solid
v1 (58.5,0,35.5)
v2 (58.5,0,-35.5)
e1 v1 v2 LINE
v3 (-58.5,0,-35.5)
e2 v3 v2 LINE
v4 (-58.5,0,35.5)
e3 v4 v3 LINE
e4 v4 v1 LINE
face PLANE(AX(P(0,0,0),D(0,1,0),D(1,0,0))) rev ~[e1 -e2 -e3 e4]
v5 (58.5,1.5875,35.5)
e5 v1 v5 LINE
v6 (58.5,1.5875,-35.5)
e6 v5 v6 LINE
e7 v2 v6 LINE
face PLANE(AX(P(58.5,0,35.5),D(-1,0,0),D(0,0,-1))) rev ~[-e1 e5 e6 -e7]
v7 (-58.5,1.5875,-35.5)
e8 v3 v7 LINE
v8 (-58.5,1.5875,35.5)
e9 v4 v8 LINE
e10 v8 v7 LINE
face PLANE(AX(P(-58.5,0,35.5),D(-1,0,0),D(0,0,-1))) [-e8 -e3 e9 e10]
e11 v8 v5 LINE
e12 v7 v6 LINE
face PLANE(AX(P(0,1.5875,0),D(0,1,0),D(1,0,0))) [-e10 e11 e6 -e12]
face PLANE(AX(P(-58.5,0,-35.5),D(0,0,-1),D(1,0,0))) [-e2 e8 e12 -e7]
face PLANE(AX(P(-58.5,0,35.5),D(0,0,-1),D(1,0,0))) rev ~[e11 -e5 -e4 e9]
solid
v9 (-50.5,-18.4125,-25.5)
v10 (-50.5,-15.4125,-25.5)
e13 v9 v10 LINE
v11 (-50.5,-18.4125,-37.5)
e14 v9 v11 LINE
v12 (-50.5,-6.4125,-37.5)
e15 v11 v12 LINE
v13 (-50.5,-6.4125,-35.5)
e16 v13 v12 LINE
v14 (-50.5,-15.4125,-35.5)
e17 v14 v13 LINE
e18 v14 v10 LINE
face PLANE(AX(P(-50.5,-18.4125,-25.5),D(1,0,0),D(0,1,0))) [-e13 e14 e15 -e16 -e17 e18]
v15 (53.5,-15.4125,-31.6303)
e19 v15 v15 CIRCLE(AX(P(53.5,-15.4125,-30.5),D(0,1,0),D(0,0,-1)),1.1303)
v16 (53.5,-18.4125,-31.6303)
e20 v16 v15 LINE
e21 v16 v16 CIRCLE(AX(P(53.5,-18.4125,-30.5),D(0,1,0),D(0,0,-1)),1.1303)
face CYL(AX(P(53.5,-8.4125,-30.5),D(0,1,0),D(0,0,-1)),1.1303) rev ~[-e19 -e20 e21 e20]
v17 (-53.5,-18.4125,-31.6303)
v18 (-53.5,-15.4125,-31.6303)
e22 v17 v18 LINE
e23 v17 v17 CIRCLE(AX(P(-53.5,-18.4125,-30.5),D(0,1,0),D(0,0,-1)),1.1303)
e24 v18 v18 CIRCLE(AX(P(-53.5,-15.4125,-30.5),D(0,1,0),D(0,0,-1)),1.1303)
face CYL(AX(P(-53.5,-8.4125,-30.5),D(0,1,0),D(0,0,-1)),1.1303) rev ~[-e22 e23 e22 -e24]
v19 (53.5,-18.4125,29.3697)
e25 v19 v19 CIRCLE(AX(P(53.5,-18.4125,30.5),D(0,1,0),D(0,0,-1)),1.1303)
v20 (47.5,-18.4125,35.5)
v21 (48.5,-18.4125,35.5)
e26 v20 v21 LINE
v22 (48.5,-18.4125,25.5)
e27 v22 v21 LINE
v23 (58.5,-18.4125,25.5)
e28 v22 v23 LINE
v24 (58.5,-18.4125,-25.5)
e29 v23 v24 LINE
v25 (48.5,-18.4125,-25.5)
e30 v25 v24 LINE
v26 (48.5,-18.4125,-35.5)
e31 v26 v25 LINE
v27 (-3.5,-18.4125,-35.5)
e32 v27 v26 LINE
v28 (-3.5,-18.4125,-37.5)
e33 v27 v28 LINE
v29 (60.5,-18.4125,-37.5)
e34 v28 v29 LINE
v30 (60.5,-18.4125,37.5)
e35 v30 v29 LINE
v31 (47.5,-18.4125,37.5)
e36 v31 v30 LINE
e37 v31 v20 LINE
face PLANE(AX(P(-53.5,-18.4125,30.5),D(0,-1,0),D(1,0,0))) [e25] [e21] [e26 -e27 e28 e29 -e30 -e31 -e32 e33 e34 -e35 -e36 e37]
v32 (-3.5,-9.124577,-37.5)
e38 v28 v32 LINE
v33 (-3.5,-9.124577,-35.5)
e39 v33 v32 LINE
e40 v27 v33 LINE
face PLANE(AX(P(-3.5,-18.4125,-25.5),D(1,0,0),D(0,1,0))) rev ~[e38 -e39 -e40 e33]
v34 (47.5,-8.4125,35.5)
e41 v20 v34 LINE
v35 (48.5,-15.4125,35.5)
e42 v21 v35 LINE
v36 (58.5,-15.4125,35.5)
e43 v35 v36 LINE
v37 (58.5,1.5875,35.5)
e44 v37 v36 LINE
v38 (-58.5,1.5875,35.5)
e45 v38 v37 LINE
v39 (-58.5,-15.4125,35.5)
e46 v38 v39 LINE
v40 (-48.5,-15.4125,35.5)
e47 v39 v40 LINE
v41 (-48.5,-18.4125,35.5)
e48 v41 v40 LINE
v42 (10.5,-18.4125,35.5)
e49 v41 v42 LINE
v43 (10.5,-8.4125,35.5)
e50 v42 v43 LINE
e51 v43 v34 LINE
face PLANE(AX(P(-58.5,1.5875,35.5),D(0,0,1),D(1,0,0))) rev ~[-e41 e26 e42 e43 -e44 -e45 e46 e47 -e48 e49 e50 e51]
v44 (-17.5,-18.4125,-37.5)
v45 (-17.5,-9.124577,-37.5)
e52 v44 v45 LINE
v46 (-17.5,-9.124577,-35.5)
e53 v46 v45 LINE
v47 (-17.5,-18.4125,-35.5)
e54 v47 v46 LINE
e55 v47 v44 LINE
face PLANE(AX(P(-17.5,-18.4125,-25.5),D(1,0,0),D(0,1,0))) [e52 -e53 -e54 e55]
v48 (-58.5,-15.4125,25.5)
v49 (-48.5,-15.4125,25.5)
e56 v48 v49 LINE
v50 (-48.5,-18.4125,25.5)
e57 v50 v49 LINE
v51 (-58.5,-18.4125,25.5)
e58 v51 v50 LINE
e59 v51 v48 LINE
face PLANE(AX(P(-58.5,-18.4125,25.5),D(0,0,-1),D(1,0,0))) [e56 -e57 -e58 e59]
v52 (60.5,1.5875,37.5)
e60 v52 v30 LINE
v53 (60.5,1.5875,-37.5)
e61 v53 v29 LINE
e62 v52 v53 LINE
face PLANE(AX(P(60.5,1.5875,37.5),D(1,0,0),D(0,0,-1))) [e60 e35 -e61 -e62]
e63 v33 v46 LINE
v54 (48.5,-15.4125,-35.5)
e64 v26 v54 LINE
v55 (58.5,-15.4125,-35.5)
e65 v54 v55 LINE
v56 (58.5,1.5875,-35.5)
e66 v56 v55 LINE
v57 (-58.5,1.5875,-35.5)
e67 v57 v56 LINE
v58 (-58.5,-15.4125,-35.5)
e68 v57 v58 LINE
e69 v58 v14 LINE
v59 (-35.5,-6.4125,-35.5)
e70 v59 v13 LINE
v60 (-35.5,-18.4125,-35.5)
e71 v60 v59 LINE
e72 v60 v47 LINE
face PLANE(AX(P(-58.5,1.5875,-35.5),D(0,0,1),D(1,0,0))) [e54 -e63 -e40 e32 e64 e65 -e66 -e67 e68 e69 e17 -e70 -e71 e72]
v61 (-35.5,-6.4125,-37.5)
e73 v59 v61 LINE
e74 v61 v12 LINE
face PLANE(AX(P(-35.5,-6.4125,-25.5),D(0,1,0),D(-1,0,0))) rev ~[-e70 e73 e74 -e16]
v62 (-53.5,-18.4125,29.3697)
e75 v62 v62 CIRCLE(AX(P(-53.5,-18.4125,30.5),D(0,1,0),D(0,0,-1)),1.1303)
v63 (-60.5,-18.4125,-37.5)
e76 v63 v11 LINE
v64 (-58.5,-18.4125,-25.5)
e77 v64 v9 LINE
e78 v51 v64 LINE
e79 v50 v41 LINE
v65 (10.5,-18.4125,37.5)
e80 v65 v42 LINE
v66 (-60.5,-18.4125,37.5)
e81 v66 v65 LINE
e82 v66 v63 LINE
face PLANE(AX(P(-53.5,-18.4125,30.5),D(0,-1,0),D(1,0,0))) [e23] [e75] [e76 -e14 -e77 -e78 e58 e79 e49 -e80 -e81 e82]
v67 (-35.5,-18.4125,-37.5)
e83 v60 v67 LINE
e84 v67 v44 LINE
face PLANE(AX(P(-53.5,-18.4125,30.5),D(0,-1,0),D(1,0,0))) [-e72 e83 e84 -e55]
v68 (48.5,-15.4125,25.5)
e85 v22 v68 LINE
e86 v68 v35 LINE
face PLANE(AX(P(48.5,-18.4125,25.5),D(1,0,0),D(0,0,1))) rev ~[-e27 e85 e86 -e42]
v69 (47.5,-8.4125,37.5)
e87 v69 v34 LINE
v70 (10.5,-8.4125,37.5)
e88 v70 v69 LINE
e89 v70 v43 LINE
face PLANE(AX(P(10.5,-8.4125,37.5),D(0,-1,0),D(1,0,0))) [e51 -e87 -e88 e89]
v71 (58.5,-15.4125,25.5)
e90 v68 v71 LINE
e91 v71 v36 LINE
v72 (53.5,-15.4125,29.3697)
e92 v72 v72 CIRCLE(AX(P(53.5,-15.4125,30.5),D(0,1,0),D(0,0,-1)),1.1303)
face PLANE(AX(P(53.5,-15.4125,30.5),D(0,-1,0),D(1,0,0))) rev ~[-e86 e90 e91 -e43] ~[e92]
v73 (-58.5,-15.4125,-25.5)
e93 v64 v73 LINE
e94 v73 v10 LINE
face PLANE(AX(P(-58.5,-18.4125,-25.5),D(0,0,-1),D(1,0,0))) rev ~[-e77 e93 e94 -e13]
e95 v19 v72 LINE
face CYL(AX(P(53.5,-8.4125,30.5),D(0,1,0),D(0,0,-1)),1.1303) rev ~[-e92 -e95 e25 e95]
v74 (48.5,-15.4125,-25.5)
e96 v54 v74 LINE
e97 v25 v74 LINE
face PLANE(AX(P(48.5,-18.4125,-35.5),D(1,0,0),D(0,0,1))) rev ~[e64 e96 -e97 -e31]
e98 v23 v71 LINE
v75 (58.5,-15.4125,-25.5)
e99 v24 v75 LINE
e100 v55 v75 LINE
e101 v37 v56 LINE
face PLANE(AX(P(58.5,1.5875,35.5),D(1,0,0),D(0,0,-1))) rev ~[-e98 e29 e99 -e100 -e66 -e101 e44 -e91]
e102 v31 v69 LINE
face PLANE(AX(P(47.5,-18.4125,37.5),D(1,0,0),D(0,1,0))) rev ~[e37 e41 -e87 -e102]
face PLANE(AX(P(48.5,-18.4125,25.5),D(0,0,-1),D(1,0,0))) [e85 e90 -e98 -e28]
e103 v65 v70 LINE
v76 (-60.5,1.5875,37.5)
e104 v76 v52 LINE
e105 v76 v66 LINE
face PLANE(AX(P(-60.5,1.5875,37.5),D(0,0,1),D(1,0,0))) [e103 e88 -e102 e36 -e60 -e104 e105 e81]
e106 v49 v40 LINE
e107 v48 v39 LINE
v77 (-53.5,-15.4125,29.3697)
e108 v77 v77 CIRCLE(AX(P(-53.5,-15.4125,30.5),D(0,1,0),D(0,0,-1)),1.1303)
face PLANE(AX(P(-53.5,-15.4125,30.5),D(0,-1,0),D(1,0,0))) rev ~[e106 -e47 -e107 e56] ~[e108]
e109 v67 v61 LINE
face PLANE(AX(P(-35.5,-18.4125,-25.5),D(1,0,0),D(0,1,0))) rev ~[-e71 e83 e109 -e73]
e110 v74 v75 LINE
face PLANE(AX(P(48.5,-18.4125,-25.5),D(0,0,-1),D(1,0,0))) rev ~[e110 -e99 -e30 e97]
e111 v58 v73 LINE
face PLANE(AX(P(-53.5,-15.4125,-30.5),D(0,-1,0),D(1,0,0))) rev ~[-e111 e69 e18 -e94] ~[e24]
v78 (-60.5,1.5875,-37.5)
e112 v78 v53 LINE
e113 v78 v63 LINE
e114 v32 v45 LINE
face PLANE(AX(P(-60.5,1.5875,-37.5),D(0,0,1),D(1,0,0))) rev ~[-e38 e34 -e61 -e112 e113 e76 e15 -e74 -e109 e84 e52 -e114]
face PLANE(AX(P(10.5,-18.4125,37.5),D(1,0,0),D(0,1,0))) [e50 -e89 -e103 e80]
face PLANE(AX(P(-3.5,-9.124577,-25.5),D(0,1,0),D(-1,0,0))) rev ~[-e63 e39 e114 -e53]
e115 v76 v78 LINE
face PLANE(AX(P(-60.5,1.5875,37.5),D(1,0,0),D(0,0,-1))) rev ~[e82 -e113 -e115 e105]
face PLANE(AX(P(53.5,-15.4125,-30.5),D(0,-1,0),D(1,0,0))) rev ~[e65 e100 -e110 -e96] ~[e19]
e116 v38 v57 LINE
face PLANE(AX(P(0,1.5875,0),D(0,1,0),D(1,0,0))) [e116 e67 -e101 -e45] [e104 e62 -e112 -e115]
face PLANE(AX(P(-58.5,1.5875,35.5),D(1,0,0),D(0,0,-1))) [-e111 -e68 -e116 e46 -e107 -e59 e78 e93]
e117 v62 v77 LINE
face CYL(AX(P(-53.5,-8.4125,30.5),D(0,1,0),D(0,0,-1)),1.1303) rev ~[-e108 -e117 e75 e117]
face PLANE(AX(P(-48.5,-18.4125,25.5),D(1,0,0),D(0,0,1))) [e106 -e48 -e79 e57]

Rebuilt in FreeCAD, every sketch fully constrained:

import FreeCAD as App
import Part
import Sketcher
from FreeCAD import Vector
Q = App.Units.Quantity

doc = App.newDocument("Part")
params = doc.addObject("Spreadsheet::Sheet", "Params")
for row, (alias, value) in enumerate([
    ("sketch1_width", "117 mm"),
    ("sketch1_height", "71 mm"),
    ("pad1_length", "1.5875 mm"),
    ("sketch2_width", "121 mm"),
    ("sketch2_width2", "117 mm"),
    ("sketch2_height", "75 mm"),
    ("sketch2_height2", "71 mm"),
    ("pad2_length", "20 mm"),
    ("sketch3_width", "10 mm"),
    ("pad3_length", "3 mm"),
    ("sketch4_width", "20 mm"),
    ("groove_angle", "360 deg"),
    ("linearpattern_pitch", "107 mm"),
    ("linearpattern2_pitch", "123.166554 mm"),
    ("linearpattern3_pitch", "61 mm"),
    ("sketch5_width", "15 mm"),
    ("sketch5_width2", "14 mm"),
    ("sketch5_height", "12 mm"),
    ("pocket1_length", "12 mm"),
    ("sketch6_width", "37 mm"),
    ("sketch6_height", "10 mm"),
    ("pocket2_length", "2 mm"),
], start=1):
    params.set(f"A{row}", alias)
    params.set(f"B{row}", "=" + value)
    params.setAlias(f"B{row}", alias)

body = doc.addObject("PartDesign::Body", "Body")

sketch1 = body.newObject("Sketcher::SketchObject", "Sketch")
sketch1.AttachmentSupport = (doc.getObject("XZ_Plane"), [""])
sketch1.MapMode = "FlatFace"
sketch1.addGeometry([
    Part.LineSegment(Vector(-58, -36, 0), Vector(-58, 36, 0)),
    Part.LineSegment(Vector(-58, 36, 0), Vector(58, 36, 0)),
    Part.LineSegment(Vector(58, 36, 0), Vector(58, -36, 0)),
    Part.LineSegment(Vector(58, -36, 0), Vector(-58, -36, 0)),
], False)
sketch1.addConstraint([
    Sketcher.Constraint("Coincident", 0, 2, 1, 1),
    Sketcher.Constraint("Coincident", 1, 2, 2, 1),
    Sketcher.Constraint("Coincident", 2, 2, 3, 1),
    Sketcher.Constraint("Coincident", 3, 2, 0, 1),
    Sketcher.Constraint("Vertical", 0),
    Sketcher.Constraint("Horizontal", 1),
    Sketcher.Constraint("Vertical", 2),
    Sketcher.Constraint("Horizontal", 3),
    Sketcher.Constraint("Symmetric", 0, 2, 2, 2, -1, 1),
    Sketcher.Constraint("DistanceX", 1, 1, 1, 2, Q("117 mm")),
    Sketcher.Constraint("DistanceY", 0, 1, 0, 2, Q("71 mm")),
])
sketch1.setExpression("Constraints[9]", "Params.sketch1_width")
sketch1.setExpression("Constraints[10]", "Params.sketch1_height")
pad1 = body.newObject("PartDesign::Pad", "Pad")
pad1.Profile = sketch1
pad1.setExpression("Length", "Params.pad1_length")
pad1.Reversed = True
body2 = doc.addObject("PartDesign::Body", "Body001")

sketch2 = body2.newObject("Sketcher::SketchObject", "Sketch001")
sketch2.AttachmentSupport = (doc.getObject("XZ_Plane001"), [""])
sketch2.MapMode = "FlatFace"
sketch2.AttachmentOffset = App.Placement(Vector(0, 0, -1.5875), App.Rotation())
sketch2.addGeometry([
    Part.LineSegment(Vector(-60, -38, 0), Vector(-60, 38, 0)),
    Part.LineSegment(Vector(-60, 38, 0), Vector(60, 38, 0)),
    Part.LineSegment(Vector(60, 38, 0), Vector(60, -38, 0)),
    Part.LineSegment(Vector(60, -38, 0), Vector(-60, -38, 0)),
    Part.LineSegment(Vector(58, 36, 0), Vector(-58, 36, 0)),
    Part.LineSegment(Vector(-58, 36, 0), Vector(-58, -36, 0)),
    Part.LineSegment(Vector(-58, -36, 0), Vector(58, -36, 0)),
    Part.LineSegment(Vector(58, -36, 0), Vector(58, 36, 0)),
], False)
sketch2.addConstraint([
    Sketcher.Constraint("Coincident", 0, 2, 1, 1),
    Sketcher.Constraint("Coincident", 1, 2, 2, 1),
    Sketcher.Constraint("Coincident", 2, 2, 3, 1),
    Sketcher.Constraint("Coincident", 3, 2, 0, 1),
    Sketcher.Constraint("Coincident", 4, 2, 5, 1),
    Sketcher.Constraint("Coincident", 5, 2, 6, 1),
    Sketcher.Constraint("Coincident", 6, 2, 7, 1),
    Sketcher.Constraint("Coincident", 7, 2, 4, 1),
    Sketcher.Constraint("Vertical", 0),
    Sketcher.Constraint("Horizontal", 1),
    Sketcher.Constraint("Vertical", 2),
    Sketcher.Constraint("Horizontal", 3),
    Sketcher.Constraint("Horizontal", 4),
    Sketcher.Constraint("Vertical", 5),
    Sketcher.Constraint("Horizontal", 6),
    Sketcher.Constraint("Vertical", 7),
    Sketcher.Constraint("Symmetric", 0, 2, 2, 2, -1, 1),
    Sketcher.Constraint("Symmetric", 4, 2, 6, 2, -1, 1),
    Sketcher.Constraint("DistanceX", 1, 1, 1, 2, Q("121 mm")),
    Sketcher.Constraint("DistanceX", 4, 2, 4, 1, Q("117 mm")),
    Sketcher.Constraint("DistanceY", 0, 1, 0, 2, Q("75 mm")),
    Sketcher.Constraint("DistanceY", 5, 2, 5, 1, Q("71 mm")),
])
sketch2.setExpression("Constraints[18]", "Params.sketch2_width")
sketch2.setExpression("Constraints[19]", "Params.sketch2_width2")
sketch2.setExpression("Constraints[20]", "Params.sketch2_height")
sketch2.setExpression("Constraints[21]", "Params.sketch2_height2")
pad2 = body2.newObject("PartDesign::Pad", "Pad001")
pad2.Profile = sketch2
pad2.setExpression("Length", "Params.pad2_length")

sketch3 = body2.newObject("Sketcher::SketchObject", "Sketch002")
sketch3.AttachmentSupport = (doc.getObject("XZ_Plane001"), [""])
sketch3.MapMode = "FlatFace"
sketch3.AttachmentOffset = App.Placement(Vector(0, 0, 18.4125), App.Rotation())
sketch3.addGeometry([
    Part.LineSegment(Vector(-58, 36, 0), Vector(-58, 26, 0)),
    Part.LineSegment(Vector(-58, 26, 0), Vector(-48, 26, 0)),
    Part.LineSegment(Vector(-48, 26, 0), Vector(-48, 36, 0)),
    Part.LineSegment(Vector(-48, 36, 0), Vector(-58, 36, 0)),
    Part.LineSegment(Vector(48, 36, 0), Vector(48, 26, 0)),
    Part.LineSegment(Vector(48, 26, 0), Vector(58, 26, 0)),
    Part.LineSegment(Vector(58, 26, 0), Vector(58, 36, 0)),
    Part.LineSegment(Vector(58, 36, 0), Vector(48, 36, 0)),
    Part.LineSegment(Vector(48, -26, 0), Vector(48, -36, 0)),
    Part.LineSegment(Vector(48, -36, 0), Vector(58, -36, 0)),
    Part.LineSegment(Vector(58, -36, 0), Vector(58, -26, 0)),
    Part.LineSegment(Vector(58, -26, 0), Vector(48, -26, 0)),
    Part.LineSegment(Vector(-58, -26, 0), Vector(-58, -36, 0)),
    Part.LineSegment(Vector(-58, -36, 0), Vector(-48, -36, 0)),
    Part.LineSegment(Vector(-48, -36, 0), Vector(-48, -26, 0)),
    Part.LineSegment(Vector(-48, -26, 0), Vector(-58, -26, 0)),
], False)
sketch3.addConstraint([
    Sketcher.Constraint("Coincident", 0, 2, 1, 1),
    Sketcher.Constraint("Coincident", 1, 2, 2, 1),
    Sketcher.Constraint("Coincident", 2, 2, 3, 1),
    Sketcher.Constraint("Coincident", 3, 2, 0, 1),
    Sketcher.Constraint("Coincident", 4, 2, 5, 1),
    Sketcher.Constraint("Coincident", 5, 2, 6, 1),
    Sketcher.Constraint("Coincident", 6, 2, 7, 1),
    Sketcher.Constraint("Coincident", 7, 2, 4, 1),
    Sketcher.Constraint("Coincident", 8, 2, 9, 1),
    Sketcher.Constraint("Coincident", 9, 2, 10, 1),
    Sketcher.Constraint("Coincident", 10, 2, 11, 1),
    Sketcher.Constraint("Coincident", 11, 2, 8, 1),
    Sketcher.Constraint("Coincident", 12, 2, 13, 1),
    Sketcher.Constraint("Coincident", 13, 2, 14, 1),
    Sketcher.Constraint("Coincident", 14, 2, 15, 1),
    Sketcher.Constraint("Coincident", 15, 2, 12, 1),
    Sketcher.Constraint("Vertical", 0),
    Sketcher.Constraint("Horizontal", 1),
    Sketcher.Constraint("Vertical", 2),
    Sketcher.Constraint("Horizontal", 3),
    Sketcher.Constraint("Vertical", 4),
    Sketcher.Constraint("Horizontal", 5),
    Sketcher.Constraint("Vertical", 6),
    Sketcher.Constraint("Horizontal", 7),
    Sketcher.Constraint("Vertical", 8),
    Sketcher.Constraint("Horizontal", 9),
    Sketcher.Constraint("Vertical", 10),
    Sketcher.Constraint("Horizontal", 11),
    Sketcher.Constraint("Vertical", 12),
    Sketcher.Constraint("Horizontal", 13),
    Sketcher.Constraint("Vertical", 14),
    Sketcher.Constraint("Horizontal", 15),
    Sketcher.Constraint("Symmetric", 2, 2, 8, 2, -1, 1),
    Sketcher.Constraint("Symmetric", 0, 2, 10, 2, -1, 1),
    Sketcher.Constraint("Symmetric", 6, 2, 12, 2, -1, 1),
    Sketcher.Constraint("Symmetric", 4, 2, 14, 2, -1, 1),
    Sketcher.Constraint("Symmetric", 1, 2, 4, 2, -2),
    Sketcher.Constraint("Symmetric", 3, 2, 6, 2, -2),
    Sketcher.Constraint("Equal", 15, 0),
    Sketcher.Constraint("DistanceX", 1, 1, 1, 2, Q("10 mm")),
    Sketcher.Constraint("DistanceX", 1, 2, 4, 2, Q("97 mm")),
    Sketcher.Constraint("DistanceY", 8, 2, 4, 2, Q("61 mm")),
])
sketch3.setExpression("Constraints[39]", "Params.sketch3_width")
pad3 = body2.newObject("PartDesign::Pad", "Pad002")
pad3.Profile = sketch3
pad3.setExpression("Length", "Params.pad3_length")
pad3.Reversed = True

sketch4 = body2.newObject("Sketcher::SketchObject", "Sketch003")
sketch4.AttachmentSupport = (doc.getObject("YZ_Plane001"), [""])
sketch4.MapMode = "FlatFace"
sketch4.AttachmentOffset = App.Placement(Vector(0, 0, -53.5), App.Rotation())
sketch4.addGeometry([
    Part.LineSegment(Vector(1.6, -30.5, 0), Vector(-18.4, -30.5, 0)),
    Part.LineSegment(Vector(-18.4, -30.5, 0), Vector(-18.4, -31.6, 0)),
    Part.LineSegment(Vector(-18.4, -31.6, 0), Vector(1.6, -31.6, 0)),
    Part.LineSegment(Vector(1.6, -31.6, 0), Vector(1.6, -30.5, 0)),
], False)
sketch4.addGeometry(Part.LineSegment(Vector(-18.4, -30.5, 0), Vector(1.6, -30.5, 0)), True)
sketch4.addConstraint([
    Sketcher.Constraint("Coincident", 0, 2, 1, 1),
    Sketcher.Constraint("Coincident", 1, 2, 2, 1),
    Sketcher.Constraint("Coincident", 2, 2, 3, 1),
    Sketcher.Constraint("Coincident", 3, 2, 0, 1),
    Sketcher.Constraint("Horizontal", 0),
    Sketcher.Constraint("Vertical", 1),
    Sketcher.Constraint("Horizontal", 2),
    Sketcher.Constraint("Vertical", 3),
    Sketcher.Constraint("Horizontal", 4),
    Sketcher.Constraint("Coincident", 4, 1, 0, 2),
    Sketcher.Constraint("Vertical", 2, 2, 4, 2),
    Sketcher.Constraint("DistanceX", 0, 2, 0, 1, Q("20 mm")),
    Sketcher.Constraint("DistanceY", 0, 2, -1, 1, Q("30.5 mm")),
    Sketcher.Constraint("DistanceY", 1, 2, 1, 1, Q("1.1303 mm")),
    Sketcher.Constraint("DistanceX", 0, 2, -1, 1, Q("18.4125 mm")),
])
sketch4.setExpression("Constraints[11]", "Params.sketch4_width")
groove = body2.newObject("PartDesign::Groove", "Groove")
groove.Profile = sketch4
groove.ReferenceAxis = (sketch4, ["Axis0"])
groove.setExpression("Angle", "Params.groove_angle")
doc.recompute()

linearpattern = body2.newObject("PartDesign::LinearPattern", "LinearPattern")
linearpattern.Originals = [groove]
linearpattern.Direction = (doc.getObject("X_Axis001"), [""])
linearpattern.Mode = "offset"
linearpattern.setExpression("Offset", "Params.linearpattern_pitch")
linearpattern.Occurrences = 2
body2.Tip = linearpattern
doc.recompute()

datumline = body2.newObject("PartDesign::Line", "DatumLine")
datumline.Placement = App.Placement(Vector(0, 0, 0), App.Rotation(Vector(0, 0, 1), Vector(0.868742338, 0, 0.495264324)))
linearpattern2 = body2.newObject("PartDesign::LinearPattern", "LinearPattern001")
linearpattern2.Originals = [groove]
linearpattern2.Direction = (datumline, [""])
linearpattern2.Mode = "offset"
linearpattern2.setExpression("Offset", "Params.linearpattern2_pitch")
linearpattern2.Occurrences = 2
body2.Tip = linearpattern2
doc.recompute()

linearpattern3 = body2.newObject("PartDesign::LinearPattern", "LinearPattern002")
linearpattern3.Originals = [groove]
linearpattern3.Direction = (doc.getObject("Z_Axis001"), [""])
linearpattern3.Mode = "offset"
linearpattern3.setExpression("Offset", "Params.linearpattern3_pitch")
linearpattern3.Occurrences = 2
body2.Tip = linearpattern3

sketch5 = body2.newObject("Sketcher::SketchObject", "Sketch004")
sketch5.AttachmentSupport = (doc.getObject("XY_Plane001"), [""])
sketch5.MapMode = "FlatFace"
sketch5.AttachmentOffset = App.Placement(Vector(0, 0, -25.5), App.Rotation())
sketch5.addGeometry([
    Part.LineSegment(Vector(-36, -6, 0), Vector(-36, -18, 0)),
    Part.LineSegment(Vector(-36, -18, 0), Vector(-50, -18, 0)),
    Part.LineSegment(Vector(-50, -18, 0), Vector(-50, -6, 0)),
    Part.LineSegment(Vector(-50, -6, 0), Vector(-36, -6, 0)),
    Part.LineSegment(Vector(-4, -9, 0), Vector(-4, -18, 0)),
    Part.LineSegment(Vector(-4, -18, 0), Vector(-18, -18, 0)),
    Part.LineSegment(Vector(-18, -18, 0), Vector(-18, -9, 0)),
    Part.LineSegment(Vector(-18, -9, 0), Vector(-4, -9, 0)),
], False)
sketch5.addConstraint([
    Sketcher.Constraint("Coincident", 0, 2, 1, 1),
    Sketcher.Constraint("Coincident", 1, 2, 2, 1),
    Sketcher.Constraint("Coincident", 2, 2, 3, 1),
    Sketcher.Constraint("Coincident", 3, 2, 0, 1),
    Sketcher.Constraint("Coincident", 4, 2, 5, 1),
    Sketcher.Constraint("Coincident", 5, 2, 6, 1),
    Sketcher.Constraint("Coincident", 6, 2, 7, 1),
    Sketcher.Constraint("Coincident", 7, 2, 4, 1),
    Sketcher.Constraint("Vertical", 0),
    Sketcher.Constraint("Horizontal", 1),
    Sketcher.Constraint("Vertical", 2),
    Sketcher.Constraint("Horizontal", 3),
    Sketcher.Constraint("Vertical", 4),
    Sketcher.Constraint("Horizontal", 5),
    Sketcher.Constraint("Vertical", 6),
    Sketcher.Constraint("Horizontal", 7),
    Sketcher.Constraint("Horizontal", 1, 2, 4, 2),
    Sketcher.Constraint("DistanceX", 1, 2, 1, 1, Q("15 mm")),
    Sketcher.Constraint("DistanceX", 5, 2, 5, 1, Q("14 mm")),
    Sketcher.Constraint("DistanceY", 0, 2, 0, 1, Q("12 mm")),
    Sketcher.Constraint("DistanceX", 0, 2, 4, 2, Q("32 mm")),
    Sketcher.Constraint("DistanceX", 0, 2, -1, 1, Q("35.5 mm")),
    Sketcher.Constraint("DistanceY", 0, 2, -1, 1, Q("18.4125 mm")),
    Sketcher.Constraint("DistanceY", 4, 2, 4, 1, Q("9.287923 mm")),
])
sketch5.setExpression("Constraints[17]", "Params.sketch5_width")
sketch5.setExpression("Constraints[18]", "Params.sketch5_width2")
sketch5.setExpression("Constraints[19]", "Params.sketch5_height")
pocket1 = body2.newObject("PartDesign::Pocket", "Pocket")
pocket1.Profile = sketch5
pocket1.setExpression("Length", "Params.pocket1_length")

sketch6 = body2.newObject("Sketcher::SketchObject", "Sketch005")
sketch6.AttachmentSupport = (doc.getObject("XY_Plane001"), [""])
sketch6.MapMode = "FlatFace"
sketch6.AttachmentOffset = App.Placement(Vector(0, 0, 37.5), App.Rotation())
sketch6.addGeometry([
    Part.LineSegment(Vector(10, -8, 0), Vector(10, -18, 0)),
    Part.LineSegment(Vector(10, -18, 0), Vector(48, -18, 0)),
    Part.LineSegment(Vector(48, -18, 0), Vector(48, -8, 0)),
    Part.LineSegment(Vector(48, -8, 0), Vector(10, -8, 0)),
], False)
sketch6.addConstraint([
    Sketcher.Constraint("Coincident", 0, 2, 1, 1),
    Sketcher.Constraint("Coincident", 1, 2, 2, 1),
    Sketcher.Constraint("Coincident", 2, 2, 3, 1),
    Sketcher.Constraint("Coincident", 3, 2, 0, 1),
    Sketcher.Constraint("Vertical", 0),
    Sketcher.Constraint("Horizontal", 1),
    Sketcher.Constraint("Vertical", 2),
    Sketcher.Constraint("Horizontal", 3),
    Sketcher.Constraint("DistanceX", 1, 1, 1, 2, Q("37 mm")),
    Sketcher.Constraint("DistanceY", 0, 2, 0, 1, Q("10 mm")),
    Sketcher.Constraint("DistanceX", -1, 1, 0, 2, Q("10.5 mm")),
    Sketcher.Constraint("DistanceY", 0, 2, -1, 1, Q("18.4125 mm")),
])
sketch6.setExpression("Constraints[8]", "Params.sketch6_width")
sketch6.setExpression("Constraints[9]", "Params.sketch6_height")
pocket2 = body2.newObject("PartDesign::Pocket", "Pocket001")
pocket2.Profile = sketch6
pocket2.setExpression("Length", "Params.pocket2_length")

doc.recompute()
